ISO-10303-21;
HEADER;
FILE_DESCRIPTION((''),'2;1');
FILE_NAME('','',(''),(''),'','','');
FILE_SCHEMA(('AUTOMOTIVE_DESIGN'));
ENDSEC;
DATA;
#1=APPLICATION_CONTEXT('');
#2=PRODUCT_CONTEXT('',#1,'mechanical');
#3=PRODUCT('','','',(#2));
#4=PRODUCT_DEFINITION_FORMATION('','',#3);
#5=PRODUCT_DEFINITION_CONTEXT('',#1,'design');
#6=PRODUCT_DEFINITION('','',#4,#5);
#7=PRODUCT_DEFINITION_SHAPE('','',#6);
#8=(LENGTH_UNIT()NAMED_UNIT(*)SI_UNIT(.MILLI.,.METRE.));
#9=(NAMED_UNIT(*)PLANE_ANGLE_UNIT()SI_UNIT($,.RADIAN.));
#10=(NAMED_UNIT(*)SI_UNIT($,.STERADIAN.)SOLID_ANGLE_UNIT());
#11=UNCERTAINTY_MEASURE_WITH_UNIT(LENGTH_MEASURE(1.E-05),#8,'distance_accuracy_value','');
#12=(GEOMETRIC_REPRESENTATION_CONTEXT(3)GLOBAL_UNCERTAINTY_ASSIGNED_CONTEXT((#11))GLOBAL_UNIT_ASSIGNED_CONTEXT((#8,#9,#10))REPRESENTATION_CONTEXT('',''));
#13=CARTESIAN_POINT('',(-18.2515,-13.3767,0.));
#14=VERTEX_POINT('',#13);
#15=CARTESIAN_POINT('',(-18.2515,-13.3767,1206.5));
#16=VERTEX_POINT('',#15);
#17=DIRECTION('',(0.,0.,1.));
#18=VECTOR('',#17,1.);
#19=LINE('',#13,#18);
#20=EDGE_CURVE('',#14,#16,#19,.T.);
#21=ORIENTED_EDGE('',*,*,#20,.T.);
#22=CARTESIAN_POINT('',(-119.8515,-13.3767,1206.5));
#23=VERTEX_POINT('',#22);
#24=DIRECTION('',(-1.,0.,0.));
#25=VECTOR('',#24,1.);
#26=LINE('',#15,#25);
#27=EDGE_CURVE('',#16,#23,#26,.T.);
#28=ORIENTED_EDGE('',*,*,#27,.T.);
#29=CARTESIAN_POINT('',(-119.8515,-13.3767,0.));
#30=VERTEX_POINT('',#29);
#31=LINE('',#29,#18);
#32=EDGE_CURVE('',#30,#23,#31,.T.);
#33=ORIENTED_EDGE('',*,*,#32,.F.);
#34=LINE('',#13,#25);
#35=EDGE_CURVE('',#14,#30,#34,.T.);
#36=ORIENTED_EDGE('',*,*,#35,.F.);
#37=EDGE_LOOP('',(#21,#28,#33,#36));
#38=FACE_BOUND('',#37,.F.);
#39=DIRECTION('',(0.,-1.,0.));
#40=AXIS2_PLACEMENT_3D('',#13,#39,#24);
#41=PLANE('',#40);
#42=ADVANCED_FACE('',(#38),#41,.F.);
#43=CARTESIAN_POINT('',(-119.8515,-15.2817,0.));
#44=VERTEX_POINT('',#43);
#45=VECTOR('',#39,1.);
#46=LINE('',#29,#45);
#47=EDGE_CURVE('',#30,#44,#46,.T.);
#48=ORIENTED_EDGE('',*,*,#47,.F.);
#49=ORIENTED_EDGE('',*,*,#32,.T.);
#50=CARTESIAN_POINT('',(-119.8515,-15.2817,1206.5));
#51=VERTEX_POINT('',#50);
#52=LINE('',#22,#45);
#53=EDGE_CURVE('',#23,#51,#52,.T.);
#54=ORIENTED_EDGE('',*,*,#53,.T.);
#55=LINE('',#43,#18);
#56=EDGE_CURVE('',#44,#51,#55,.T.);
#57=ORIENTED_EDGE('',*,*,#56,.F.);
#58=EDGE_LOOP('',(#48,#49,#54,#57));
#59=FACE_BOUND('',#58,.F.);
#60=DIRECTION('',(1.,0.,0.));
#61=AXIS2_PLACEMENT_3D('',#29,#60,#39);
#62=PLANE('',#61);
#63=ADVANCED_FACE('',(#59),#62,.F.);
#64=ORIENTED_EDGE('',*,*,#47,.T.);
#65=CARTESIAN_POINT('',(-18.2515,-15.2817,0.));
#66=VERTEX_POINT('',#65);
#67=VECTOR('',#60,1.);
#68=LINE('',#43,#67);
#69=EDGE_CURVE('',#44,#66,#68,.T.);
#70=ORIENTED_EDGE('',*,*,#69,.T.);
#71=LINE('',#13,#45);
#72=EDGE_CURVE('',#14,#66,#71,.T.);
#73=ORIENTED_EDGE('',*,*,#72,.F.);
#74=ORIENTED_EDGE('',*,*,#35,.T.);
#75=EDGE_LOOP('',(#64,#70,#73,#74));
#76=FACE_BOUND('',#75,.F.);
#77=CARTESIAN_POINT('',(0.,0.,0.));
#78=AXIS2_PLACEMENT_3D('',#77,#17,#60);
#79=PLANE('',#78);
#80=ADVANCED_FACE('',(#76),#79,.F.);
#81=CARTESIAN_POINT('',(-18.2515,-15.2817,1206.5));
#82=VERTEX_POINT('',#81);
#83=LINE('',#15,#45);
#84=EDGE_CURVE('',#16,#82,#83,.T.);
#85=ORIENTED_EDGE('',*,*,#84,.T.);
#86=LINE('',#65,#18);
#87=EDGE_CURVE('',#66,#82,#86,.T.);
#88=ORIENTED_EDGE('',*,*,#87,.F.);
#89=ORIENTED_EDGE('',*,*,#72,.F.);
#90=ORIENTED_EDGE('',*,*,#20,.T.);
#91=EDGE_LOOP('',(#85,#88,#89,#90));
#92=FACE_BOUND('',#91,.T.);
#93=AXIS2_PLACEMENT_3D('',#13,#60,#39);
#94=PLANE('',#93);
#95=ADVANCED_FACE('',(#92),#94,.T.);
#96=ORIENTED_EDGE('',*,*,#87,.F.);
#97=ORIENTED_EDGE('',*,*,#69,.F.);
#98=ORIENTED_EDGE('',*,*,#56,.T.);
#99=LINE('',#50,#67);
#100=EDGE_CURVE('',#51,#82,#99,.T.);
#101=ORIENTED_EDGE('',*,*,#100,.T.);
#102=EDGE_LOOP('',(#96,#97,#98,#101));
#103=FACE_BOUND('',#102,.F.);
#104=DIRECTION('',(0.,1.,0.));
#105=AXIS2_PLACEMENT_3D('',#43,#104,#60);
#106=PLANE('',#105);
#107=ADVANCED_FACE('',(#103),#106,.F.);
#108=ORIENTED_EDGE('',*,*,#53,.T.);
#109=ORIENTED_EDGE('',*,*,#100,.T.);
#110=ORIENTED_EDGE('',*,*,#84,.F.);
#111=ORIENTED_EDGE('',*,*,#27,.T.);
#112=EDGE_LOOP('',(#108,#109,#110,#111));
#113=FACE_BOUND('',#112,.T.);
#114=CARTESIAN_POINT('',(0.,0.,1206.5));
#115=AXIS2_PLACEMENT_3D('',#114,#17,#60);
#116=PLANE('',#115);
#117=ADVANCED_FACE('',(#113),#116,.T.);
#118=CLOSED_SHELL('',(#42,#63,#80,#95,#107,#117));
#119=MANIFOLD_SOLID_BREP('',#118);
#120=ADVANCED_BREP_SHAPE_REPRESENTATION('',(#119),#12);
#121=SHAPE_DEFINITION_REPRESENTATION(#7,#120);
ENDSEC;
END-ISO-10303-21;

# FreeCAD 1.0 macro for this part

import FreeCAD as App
import Part
import Sketcher

V = App.Vector
Q = App.Units.Quantity

doc = App.newDocument("Part")
body = doc.addObject("PartDesign::Body", "Body")

# Sketch on XY plane
sketch1 = body.newObject("Sketcher::SketchObject", "Sketch")
sketch1.AttachmentSupport = (doc.getObject("XY_Plane"), [""])
sketch1.MapMode = "FlatFace"
sketch1.addGeometry([
    Part.LineSegment(V(-119.8515, -13.3767, 0), V(-119.8515, -15.2817, 0)),
    Part.LineSegment(V(-119.8515, -15.2817, 0), V(-18.2515, -15.2817, 0)),
    Part.LineSegment(V(-18.2515, -15.2817, 0), V(-18.2515, -13.3767, 0)),
    Part.LineSegment(V(-18.2515, -13.3767, 0), V(-119.8515, -13.3767, 0)),
], False)
sketch1.addConstraint([
    Sketcher.Constraint("Coincident", 0, 2, 1, 1),
    Sketcher.Constraint("Coincident", 1, 2, 2, 1),
    Sketcher.Constraint("Coincident", 2, 2, 3, 1),
    Sketcher.Constraint("Coincident", 3, 2, 0, 1),
    Sketcher.Constraint("Vertical", 0),
    Sketcher.Constraint("Horizontal", 1),
    Sketcher.Constraint("Vertical", 2),
    Sketcher.Constraint("Horizontal", 3),
    Sketcher.Constraint("DistanceX", 1, 1, 1, 2, Q("4 in")),
    Sketcher.Constraint("DistanceY", 0, 2, 0, 1, Q("0.075 in")),
    Sketcher.Constraint("DistanceX", 0, 2, -1, 1, Q("119.8515 mm")),
    Sketcher.Constraint("DistanceY", 0, 2, -1, 1, Q("15.2817 mm")),
])
pad1 = body.newObject("PartDesign::Pad", "Pad")
pad1.Profile = sketch1
pad1.Length = Q("47.5 in")

doc.recompute()
